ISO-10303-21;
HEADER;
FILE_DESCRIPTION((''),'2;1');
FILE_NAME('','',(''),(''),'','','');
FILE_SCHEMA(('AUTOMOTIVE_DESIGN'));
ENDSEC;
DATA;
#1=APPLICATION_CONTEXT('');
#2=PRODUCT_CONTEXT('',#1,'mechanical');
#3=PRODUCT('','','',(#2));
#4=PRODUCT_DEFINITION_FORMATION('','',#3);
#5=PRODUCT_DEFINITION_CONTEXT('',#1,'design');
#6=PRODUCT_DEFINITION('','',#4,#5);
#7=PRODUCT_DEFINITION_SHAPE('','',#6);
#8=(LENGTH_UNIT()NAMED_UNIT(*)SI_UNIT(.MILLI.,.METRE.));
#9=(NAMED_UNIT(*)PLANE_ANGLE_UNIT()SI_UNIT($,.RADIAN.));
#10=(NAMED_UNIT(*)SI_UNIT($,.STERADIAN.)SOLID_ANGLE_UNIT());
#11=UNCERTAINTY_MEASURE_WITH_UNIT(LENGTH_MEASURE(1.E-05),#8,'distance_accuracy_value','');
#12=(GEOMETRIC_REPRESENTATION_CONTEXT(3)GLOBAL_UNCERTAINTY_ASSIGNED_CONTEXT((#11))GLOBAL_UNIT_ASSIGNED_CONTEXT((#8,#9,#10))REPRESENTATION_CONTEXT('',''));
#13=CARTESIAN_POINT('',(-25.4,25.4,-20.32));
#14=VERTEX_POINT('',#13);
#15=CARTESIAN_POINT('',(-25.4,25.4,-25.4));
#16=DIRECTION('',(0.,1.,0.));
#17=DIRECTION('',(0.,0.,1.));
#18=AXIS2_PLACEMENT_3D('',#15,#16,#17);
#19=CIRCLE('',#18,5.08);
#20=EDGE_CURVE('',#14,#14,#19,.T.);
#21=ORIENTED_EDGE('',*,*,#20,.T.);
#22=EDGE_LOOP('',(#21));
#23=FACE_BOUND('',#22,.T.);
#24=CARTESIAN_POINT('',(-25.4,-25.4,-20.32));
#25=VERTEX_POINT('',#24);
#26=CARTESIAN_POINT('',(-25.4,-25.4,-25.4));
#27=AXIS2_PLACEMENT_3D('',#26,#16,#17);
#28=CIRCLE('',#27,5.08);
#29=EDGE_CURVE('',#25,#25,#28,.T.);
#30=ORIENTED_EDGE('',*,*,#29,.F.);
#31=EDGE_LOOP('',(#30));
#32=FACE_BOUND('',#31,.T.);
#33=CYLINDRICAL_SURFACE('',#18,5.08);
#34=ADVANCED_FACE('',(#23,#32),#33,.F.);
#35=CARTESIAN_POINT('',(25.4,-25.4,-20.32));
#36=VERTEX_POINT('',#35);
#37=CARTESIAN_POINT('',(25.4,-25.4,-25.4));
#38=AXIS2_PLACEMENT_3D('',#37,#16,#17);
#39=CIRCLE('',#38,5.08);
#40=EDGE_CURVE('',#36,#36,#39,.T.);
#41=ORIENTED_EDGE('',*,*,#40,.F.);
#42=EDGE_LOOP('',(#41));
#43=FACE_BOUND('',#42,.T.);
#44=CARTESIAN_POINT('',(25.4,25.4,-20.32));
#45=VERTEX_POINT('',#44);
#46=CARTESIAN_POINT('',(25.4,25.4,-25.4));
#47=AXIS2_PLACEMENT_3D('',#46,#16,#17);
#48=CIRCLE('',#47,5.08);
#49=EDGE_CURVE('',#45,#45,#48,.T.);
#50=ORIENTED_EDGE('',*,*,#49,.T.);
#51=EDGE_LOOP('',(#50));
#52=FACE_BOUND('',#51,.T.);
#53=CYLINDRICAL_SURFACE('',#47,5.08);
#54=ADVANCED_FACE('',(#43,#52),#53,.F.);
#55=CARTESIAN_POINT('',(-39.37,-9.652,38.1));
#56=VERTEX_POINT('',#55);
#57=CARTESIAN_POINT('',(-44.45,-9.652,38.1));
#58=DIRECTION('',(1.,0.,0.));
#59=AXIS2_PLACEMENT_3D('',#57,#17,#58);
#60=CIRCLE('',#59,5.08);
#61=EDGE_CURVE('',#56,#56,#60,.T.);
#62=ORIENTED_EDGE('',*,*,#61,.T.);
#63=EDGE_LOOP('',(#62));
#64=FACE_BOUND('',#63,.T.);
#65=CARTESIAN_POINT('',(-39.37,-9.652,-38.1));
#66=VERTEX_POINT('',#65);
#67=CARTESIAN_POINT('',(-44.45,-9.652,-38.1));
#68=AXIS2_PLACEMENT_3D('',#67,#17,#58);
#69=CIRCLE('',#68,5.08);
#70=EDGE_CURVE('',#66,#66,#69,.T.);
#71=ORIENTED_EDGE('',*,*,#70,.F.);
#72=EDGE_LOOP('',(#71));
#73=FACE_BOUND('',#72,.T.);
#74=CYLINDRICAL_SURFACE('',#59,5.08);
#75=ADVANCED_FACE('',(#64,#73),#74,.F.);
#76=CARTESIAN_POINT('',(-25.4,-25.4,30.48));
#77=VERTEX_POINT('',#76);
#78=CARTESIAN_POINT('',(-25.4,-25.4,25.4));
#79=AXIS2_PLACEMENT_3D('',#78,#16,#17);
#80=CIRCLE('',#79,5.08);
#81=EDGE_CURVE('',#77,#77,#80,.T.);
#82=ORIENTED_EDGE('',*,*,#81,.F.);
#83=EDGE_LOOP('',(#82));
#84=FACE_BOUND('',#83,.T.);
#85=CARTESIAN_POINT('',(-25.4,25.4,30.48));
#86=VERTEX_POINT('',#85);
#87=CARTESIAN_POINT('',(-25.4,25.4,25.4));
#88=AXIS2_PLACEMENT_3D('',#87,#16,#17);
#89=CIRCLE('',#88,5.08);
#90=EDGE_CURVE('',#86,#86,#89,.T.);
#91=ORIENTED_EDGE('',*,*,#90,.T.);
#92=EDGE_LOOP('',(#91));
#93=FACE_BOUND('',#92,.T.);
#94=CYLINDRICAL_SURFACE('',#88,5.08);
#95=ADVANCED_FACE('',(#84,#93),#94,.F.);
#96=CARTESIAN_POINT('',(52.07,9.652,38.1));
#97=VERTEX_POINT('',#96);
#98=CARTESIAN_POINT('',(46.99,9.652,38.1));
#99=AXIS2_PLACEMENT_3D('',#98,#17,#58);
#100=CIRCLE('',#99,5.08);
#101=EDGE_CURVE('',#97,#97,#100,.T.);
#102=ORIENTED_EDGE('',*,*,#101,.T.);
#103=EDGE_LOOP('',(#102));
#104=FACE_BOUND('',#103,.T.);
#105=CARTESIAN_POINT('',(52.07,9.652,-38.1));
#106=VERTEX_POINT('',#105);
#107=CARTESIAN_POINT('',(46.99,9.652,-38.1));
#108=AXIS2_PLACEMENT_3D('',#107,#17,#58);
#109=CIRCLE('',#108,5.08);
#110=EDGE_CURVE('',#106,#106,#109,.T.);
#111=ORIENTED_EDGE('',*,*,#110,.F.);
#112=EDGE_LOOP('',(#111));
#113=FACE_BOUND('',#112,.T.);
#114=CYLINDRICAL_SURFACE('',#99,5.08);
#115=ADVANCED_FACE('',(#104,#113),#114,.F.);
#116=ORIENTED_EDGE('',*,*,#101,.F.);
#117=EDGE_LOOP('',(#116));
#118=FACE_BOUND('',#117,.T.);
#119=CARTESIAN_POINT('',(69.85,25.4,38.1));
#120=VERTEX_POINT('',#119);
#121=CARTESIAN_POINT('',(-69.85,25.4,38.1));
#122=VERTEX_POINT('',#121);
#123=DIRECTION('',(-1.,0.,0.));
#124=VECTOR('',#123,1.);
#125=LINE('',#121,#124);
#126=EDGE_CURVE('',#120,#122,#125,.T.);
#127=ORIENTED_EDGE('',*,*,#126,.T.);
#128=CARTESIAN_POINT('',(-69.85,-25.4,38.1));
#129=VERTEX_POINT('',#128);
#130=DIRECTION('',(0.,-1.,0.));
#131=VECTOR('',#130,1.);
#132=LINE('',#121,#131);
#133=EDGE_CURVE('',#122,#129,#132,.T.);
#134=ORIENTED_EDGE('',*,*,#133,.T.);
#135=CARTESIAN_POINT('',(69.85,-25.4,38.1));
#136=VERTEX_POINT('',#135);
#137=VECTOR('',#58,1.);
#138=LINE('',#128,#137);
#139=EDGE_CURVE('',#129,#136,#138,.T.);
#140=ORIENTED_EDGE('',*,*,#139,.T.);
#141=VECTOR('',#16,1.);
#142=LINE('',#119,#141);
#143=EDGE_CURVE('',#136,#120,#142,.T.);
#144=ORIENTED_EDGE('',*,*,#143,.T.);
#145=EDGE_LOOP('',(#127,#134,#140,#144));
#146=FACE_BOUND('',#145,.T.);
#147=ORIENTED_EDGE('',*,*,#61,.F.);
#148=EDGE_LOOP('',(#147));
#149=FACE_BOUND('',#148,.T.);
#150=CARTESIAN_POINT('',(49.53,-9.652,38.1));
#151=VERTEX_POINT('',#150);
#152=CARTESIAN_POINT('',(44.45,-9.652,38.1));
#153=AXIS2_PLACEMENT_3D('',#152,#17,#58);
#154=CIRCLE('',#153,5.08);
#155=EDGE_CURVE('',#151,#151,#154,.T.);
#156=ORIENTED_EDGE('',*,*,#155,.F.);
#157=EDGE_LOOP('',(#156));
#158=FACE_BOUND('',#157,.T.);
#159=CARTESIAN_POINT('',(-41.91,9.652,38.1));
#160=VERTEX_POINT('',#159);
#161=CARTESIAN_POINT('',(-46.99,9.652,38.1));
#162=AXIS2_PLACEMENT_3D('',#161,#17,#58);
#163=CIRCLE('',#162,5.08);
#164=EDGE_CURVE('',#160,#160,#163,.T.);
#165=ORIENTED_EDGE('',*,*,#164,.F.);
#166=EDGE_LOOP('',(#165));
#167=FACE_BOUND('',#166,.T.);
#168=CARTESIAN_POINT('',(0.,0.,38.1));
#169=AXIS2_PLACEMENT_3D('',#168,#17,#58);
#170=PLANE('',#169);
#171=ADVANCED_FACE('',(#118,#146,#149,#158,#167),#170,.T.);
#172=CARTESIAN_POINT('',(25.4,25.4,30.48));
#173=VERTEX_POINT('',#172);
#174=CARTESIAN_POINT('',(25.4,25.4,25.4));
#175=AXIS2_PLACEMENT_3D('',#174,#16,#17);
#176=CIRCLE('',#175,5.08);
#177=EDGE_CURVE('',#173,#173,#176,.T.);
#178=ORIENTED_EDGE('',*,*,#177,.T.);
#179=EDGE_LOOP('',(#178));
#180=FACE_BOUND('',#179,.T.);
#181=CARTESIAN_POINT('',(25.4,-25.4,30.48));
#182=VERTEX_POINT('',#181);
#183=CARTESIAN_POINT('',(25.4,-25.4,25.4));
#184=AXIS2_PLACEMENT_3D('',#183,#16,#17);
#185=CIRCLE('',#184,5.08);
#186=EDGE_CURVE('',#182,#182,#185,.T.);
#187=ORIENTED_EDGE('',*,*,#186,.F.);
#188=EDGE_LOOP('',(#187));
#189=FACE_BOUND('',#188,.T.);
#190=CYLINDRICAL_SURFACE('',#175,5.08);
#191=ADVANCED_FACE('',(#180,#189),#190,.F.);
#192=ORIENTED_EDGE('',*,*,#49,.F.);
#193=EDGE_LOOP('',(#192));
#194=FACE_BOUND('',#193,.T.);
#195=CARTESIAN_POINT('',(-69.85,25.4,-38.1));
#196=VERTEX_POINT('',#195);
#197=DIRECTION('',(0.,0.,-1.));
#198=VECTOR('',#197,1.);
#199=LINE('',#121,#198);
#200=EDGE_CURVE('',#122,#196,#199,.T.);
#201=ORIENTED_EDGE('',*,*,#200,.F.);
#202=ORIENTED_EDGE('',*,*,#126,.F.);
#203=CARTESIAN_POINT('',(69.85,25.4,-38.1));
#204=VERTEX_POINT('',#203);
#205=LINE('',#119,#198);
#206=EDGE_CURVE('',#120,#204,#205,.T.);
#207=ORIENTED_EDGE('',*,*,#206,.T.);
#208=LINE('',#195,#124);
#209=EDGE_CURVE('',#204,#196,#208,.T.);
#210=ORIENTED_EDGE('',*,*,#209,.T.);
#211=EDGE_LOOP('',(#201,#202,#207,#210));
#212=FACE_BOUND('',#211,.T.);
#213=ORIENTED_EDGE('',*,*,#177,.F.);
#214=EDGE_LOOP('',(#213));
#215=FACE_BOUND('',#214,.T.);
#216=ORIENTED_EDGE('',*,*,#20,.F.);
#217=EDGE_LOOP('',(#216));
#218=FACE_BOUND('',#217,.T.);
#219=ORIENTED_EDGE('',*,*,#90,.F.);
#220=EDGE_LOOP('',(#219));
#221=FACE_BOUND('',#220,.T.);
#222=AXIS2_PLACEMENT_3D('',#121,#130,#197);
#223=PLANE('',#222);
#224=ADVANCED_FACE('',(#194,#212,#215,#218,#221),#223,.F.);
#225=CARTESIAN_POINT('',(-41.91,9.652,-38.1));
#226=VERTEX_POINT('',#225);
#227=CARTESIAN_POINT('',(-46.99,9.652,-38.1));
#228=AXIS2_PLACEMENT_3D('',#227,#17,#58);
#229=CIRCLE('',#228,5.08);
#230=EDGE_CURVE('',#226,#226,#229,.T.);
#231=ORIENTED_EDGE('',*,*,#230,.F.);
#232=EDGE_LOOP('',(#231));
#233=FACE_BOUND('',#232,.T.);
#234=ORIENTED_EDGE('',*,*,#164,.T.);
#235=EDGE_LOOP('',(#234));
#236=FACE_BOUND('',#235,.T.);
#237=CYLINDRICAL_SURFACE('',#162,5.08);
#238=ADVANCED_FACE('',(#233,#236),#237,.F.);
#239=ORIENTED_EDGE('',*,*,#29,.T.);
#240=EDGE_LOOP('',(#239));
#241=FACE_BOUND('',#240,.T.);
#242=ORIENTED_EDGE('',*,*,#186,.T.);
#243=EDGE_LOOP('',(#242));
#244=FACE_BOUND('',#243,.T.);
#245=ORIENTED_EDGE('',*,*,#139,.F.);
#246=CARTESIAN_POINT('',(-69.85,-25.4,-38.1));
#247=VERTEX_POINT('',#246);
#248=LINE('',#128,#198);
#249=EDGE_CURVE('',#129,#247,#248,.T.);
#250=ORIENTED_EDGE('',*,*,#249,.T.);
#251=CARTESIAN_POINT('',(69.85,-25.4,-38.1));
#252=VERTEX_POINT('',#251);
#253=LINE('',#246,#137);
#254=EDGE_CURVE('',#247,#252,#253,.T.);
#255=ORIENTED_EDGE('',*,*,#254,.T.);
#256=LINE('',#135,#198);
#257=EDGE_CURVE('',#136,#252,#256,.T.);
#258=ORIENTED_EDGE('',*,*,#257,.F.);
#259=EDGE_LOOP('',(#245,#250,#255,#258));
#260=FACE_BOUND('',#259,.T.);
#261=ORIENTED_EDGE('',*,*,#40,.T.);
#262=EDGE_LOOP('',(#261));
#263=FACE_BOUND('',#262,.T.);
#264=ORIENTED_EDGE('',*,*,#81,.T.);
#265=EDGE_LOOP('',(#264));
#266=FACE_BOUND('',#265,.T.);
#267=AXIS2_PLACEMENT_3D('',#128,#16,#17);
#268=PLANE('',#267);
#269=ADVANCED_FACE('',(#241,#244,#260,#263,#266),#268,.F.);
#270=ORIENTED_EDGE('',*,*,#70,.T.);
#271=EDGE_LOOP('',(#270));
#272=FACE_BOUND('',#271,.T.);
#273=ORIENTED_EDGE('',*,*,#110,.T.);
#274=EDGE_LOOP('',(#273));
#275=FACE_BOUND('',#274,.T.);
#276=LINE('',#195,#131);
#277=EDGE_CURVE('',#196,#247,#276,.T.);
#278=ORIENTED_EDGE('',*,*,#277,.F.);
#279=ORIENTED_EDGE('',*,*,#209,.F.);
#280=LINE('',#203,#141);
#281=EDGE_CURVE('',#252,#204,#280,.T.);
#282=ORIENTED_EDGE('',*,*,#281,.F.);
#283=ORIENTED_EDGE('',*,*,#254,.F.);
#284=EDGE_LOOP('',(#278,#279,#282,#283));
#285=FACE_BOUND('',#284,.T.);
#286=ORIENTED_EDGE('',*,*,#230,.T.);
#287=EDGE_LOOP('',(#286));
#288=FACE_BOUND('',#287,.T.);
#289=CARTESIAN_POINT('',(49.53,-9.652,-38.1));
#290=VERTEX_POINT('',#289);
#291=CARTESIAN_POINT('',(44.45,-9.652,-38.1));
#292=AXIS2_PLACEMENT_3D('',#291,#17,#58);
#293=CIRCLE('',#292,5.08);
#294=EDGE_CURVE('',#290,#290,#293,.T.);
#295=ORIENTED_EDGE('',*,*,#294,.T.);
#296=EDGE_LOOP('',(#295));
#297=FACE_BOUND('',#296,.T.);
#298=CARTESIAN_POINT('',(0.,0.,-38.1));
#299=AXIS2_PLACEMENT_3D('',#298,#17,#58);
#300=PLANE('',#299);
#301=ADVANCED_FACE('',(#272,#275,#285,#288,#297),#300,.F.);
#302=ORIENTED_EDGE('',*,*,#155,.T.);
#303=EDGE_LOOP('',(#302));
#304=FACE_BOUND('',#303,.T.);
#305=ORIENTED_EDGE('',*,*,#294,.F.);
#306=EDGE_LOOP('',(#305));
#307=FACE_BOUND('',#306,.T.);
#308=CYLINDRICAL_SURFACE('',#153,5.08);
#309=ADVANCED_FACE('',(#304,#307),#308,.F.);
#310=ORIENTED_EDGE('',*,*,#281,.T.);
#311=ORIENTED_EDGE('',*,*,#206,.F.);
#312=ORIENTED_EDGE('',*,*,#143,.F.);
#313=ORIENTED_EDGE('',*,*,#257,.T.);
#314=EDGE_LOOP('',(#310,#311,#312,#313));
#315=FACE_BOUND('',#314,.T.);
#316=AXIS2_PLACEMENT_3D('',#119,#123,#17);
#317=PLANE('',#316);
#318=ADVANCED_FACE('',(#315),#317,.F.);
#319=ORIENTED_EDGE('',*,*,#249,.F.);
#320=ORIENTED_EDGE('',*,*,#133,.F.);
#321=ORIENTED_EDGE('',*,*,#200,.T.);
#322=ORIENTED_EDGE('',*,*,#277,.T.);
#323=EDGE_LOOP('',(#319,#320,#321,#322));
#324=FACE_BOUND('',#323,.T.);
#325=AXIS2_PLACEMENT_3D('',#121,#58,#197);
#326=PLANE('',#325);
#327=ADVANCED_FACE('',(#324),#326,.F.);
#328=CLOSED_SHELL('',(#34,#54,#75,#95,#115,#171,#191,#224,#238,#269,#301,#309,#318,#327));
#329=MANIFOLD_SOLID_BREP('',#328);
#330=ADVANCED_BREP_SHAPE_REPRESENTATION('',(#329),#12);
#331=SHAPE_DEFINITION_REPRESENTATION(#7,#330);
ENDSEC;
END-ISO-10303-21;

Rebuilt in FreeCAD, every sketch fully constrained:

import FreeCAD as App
import Part
import Sketcher
from FreeCAD import Vector
Q = App.Units.Quantity

doc = App.newDocument("Part")
params = doc.addObject("Spreadsheet::Sheet", "Params")
for row, (alias, value) in enumerate([
    ("sketch1_height", "2 in"),
    ("sketch1_width", "5.5 in"),
    ("pad1_length", "3 in"),
    ("sketch2_diameter", "0.4 in"),
    ("hole_diameter", "0.4 in"),
    ("sketch3_diameter", "0.4 in"),
    ("hole2_diameter", "0.4 in"),
], start=1):
    params.set(f"A{row}", alias)
    params.set(f"B{row}", "=" + value)
    params.setAlias(f"B{row}", alias)

body = doc.addObject("PartDesign::Body", "Body")

sketch1 = body.newObject("Sketcher::SketchObject", "Sketch")
sketch1.AttachmentSupport = (doc.getObject("XY_Plane"), [""])
sketch1.MapMode = "FlatFace"
sketch1.addGeometry(Part.LineSegment(Vector(-69.85, 25.4, 0), Vector(-69.85, -25.4, 0)), False)
sketch1.addGeometry(Part.LineSegment(Vector(-69.85, -25.4, 0), Vector(69.85, -25.4, 0)), False)
sketch1.addGeometry(Part.LineSegment(Vector(69.85, -25.4, 0), Vector(69.85, 25.4, 0)), False)
sketch1.addGeometry(Part.LineSegment(Vector(69.85, 25.4, 0), Vector(-69.85, 25.4, 0)), False)
sketch1.addConstraint(Sketcher.Constraint("Coincident", 0, 2, 1, 1))
sketch1.addConstraint(Sketcher.Constraint("Coincident", 1, 2, 2, 1))
sketch1.addConstraint(Sketcher.Constraint("Coincident", 2, 2, 3, 1))
sketch1.addConstraint(Sketcher.Constraint("Coincident", 3, 2, 0, 1))
sketch1.addConstraint(Sketcher.Constraint("Vertical", 0))
sketch1.addConstraint(Sketcher.Constraint("Horizontal", 1))
sketch1.addConstraint(Sketcher.Constraint("Vertical", 2))
sketch1.addConstraint(Sketcher.Constraint("Horizontal", 3))
sketch1.addConstraint(Sketcher.Constraint("Symmetric", 0, 2, 2, 2, -1, 1))
sketch1.addConstraint(Sketcher.Constraint("DistanceY", 0, 2, 0, 1, Q("2 in")))
sketch1.addConstraint(Sketcher.Constraint("DistanceX", 1, 1, 1, 2, Q("5.5 in")))
sketch1.setExpression("Constraints[9]", "Params.sketch1_height")
sketch1.setExpression("Constraints[10]", "Params.sketch1_width")
pad1 = body.newObject("PartDesign::Pad", "Pad")
pad1.Profile = sketch1
pad1.setExpression("Length", "Params.pad1_length")
pad1.Midplane = True

sketch2 = body.newObject("Sketcher::SketchObject", "Sketch001")
sketch2.AttachmentSupport = (doc.getObject("XY_Plane"), [""])
sketch2.MapMode = "FlatFace"
sketch2.AttachmentOffset = App.Placement(Vector(0, 0, 1.5 * 25.4), App.Rotation())
sketch2.addGeometry(Part.Circle(Vector(46.99, 9.652, 0), Vector(0, 0, 1), 5.08), False)
sketch2.addGeometry(Part.Circle(Vector(44.45, -9.652, 0), Vector(0, 0, 1), 5.08), False)
sketch2.addConstraint(Sketcher.Constraint("Equal", 0, 1))
sketch2.addConstraint(Sketcher.Constraint("Diameter", 0, Q("0.4 in")))
sketch2.addConstraint(Sketcher.Constraint("DistanceX", 1, 3, 0, 3, Q("0.1 in")))
sketch2.addConstraint(Sketcher.Constraint("DistanceX", -1, 1, 0, 3, Q("1.85 in")))
sketch2.addConstraint(Sketcher.Constraint("DistanceY", -1, 1, 0, 3, Q("0.38 in")))
sketch2.addConstraint(Sketcher.Constraint("DistanceY", 1, 3, -1, 1, Q("0.38 in")))
sketch2.setExpression("Constraints[1]", "Params.sketch2_diameter")
doc.recompute()
hole = body.newObject("PartDesign::Hole", "Hole")
hole.Profile = sketch2
hole.ThreadType = "None"
hole.setExpression("Diameter", "Params.hole_diameter")
hole.DepthType = "ThroughAll"
doc.recompute()

mirrored = body.newObject("PartDesign::Mirrored", "Mirrored")
mirrored.Originals = [hole]
mirrored.MirrorPlane = (doc.getObject("YZ_Plane"), [""])
body.Tip = mirrored

sketch3 = body.newObject("Sketcher::SketchObject", "Sketch002")
sketch3.AttachmentSupport = (doc.getObject("XZ_Plane"), [""])
sketch3.MapMode = "FlatFace"
sketch3.AttachmentOffset = App.Placement(Vector(0, 0, -1 * 25.4), App.Rotation())
sketch3.addGeometry(Part.Circle(Vector(-25.4, -25.4, 0), Vector(0, 0, 1), 5.08), False)
sketch3.addGeometry(Part.Circle(Vector(-25.4, 25.4, 0), Vector(0, 0, 1), 5.08), False)
sketch3.addGeometry(Part.Circle(Vector(25.4, 25.4, 0), Vector(0, 0, 1), 5.08), False)
sketch3.addGeometry(Part.Circle(Vector(25.4, -25.4, 0), Vector(0, 0, 1), 5.08), False)
sketch3.addConstraint(Sketcher.Constraint("Equal", 0, 1))
sketch3.addConstraint(Sketcher.Constraint("Equal", 1, 2))
sketch3.addConstraint(Sketcher.Constraint("Equal", 2, 3))
sketch3.addConstraint(Sketcher.Constraint("Symmetric", 0, 3, 2, 3, -1, 1))
sketch3.addConstraint(Sketcher.Constraint("Symmetric", 1, 3, 3, 3, -1, 1))
sketch3.addConstraint(Sketcher.Constraint("Symmetric", 1, 3, 2, 3, -2))
sketch3.addConstraint(Sketcher.Constraint("Diameter", 0, Q("0.4 in")))
sketch3.addConstraint(Sketcher.Constraint("DistanceX", 0, 3, -1, 1, Q("1 in")))
sketch3.addConstraint(Sketcher.Constraint("DistanceY", 0, 3, -1, 1, Q("1 in")))
sketch3.setExpression("Constraints[6]", "Params.sketch3_diameter")
doc.recompute()
hole2 = body.newObject("PartDesign::Hole", "Hole001")
hole2.Profile = sketch3
hole2.ThreadType = "None"
hole2.setExpression("Diameter", "Params.hole2_diameter")
hole2.DepthType = "ThroughAll"
hole2.Reversed = True

doc.recompute()
